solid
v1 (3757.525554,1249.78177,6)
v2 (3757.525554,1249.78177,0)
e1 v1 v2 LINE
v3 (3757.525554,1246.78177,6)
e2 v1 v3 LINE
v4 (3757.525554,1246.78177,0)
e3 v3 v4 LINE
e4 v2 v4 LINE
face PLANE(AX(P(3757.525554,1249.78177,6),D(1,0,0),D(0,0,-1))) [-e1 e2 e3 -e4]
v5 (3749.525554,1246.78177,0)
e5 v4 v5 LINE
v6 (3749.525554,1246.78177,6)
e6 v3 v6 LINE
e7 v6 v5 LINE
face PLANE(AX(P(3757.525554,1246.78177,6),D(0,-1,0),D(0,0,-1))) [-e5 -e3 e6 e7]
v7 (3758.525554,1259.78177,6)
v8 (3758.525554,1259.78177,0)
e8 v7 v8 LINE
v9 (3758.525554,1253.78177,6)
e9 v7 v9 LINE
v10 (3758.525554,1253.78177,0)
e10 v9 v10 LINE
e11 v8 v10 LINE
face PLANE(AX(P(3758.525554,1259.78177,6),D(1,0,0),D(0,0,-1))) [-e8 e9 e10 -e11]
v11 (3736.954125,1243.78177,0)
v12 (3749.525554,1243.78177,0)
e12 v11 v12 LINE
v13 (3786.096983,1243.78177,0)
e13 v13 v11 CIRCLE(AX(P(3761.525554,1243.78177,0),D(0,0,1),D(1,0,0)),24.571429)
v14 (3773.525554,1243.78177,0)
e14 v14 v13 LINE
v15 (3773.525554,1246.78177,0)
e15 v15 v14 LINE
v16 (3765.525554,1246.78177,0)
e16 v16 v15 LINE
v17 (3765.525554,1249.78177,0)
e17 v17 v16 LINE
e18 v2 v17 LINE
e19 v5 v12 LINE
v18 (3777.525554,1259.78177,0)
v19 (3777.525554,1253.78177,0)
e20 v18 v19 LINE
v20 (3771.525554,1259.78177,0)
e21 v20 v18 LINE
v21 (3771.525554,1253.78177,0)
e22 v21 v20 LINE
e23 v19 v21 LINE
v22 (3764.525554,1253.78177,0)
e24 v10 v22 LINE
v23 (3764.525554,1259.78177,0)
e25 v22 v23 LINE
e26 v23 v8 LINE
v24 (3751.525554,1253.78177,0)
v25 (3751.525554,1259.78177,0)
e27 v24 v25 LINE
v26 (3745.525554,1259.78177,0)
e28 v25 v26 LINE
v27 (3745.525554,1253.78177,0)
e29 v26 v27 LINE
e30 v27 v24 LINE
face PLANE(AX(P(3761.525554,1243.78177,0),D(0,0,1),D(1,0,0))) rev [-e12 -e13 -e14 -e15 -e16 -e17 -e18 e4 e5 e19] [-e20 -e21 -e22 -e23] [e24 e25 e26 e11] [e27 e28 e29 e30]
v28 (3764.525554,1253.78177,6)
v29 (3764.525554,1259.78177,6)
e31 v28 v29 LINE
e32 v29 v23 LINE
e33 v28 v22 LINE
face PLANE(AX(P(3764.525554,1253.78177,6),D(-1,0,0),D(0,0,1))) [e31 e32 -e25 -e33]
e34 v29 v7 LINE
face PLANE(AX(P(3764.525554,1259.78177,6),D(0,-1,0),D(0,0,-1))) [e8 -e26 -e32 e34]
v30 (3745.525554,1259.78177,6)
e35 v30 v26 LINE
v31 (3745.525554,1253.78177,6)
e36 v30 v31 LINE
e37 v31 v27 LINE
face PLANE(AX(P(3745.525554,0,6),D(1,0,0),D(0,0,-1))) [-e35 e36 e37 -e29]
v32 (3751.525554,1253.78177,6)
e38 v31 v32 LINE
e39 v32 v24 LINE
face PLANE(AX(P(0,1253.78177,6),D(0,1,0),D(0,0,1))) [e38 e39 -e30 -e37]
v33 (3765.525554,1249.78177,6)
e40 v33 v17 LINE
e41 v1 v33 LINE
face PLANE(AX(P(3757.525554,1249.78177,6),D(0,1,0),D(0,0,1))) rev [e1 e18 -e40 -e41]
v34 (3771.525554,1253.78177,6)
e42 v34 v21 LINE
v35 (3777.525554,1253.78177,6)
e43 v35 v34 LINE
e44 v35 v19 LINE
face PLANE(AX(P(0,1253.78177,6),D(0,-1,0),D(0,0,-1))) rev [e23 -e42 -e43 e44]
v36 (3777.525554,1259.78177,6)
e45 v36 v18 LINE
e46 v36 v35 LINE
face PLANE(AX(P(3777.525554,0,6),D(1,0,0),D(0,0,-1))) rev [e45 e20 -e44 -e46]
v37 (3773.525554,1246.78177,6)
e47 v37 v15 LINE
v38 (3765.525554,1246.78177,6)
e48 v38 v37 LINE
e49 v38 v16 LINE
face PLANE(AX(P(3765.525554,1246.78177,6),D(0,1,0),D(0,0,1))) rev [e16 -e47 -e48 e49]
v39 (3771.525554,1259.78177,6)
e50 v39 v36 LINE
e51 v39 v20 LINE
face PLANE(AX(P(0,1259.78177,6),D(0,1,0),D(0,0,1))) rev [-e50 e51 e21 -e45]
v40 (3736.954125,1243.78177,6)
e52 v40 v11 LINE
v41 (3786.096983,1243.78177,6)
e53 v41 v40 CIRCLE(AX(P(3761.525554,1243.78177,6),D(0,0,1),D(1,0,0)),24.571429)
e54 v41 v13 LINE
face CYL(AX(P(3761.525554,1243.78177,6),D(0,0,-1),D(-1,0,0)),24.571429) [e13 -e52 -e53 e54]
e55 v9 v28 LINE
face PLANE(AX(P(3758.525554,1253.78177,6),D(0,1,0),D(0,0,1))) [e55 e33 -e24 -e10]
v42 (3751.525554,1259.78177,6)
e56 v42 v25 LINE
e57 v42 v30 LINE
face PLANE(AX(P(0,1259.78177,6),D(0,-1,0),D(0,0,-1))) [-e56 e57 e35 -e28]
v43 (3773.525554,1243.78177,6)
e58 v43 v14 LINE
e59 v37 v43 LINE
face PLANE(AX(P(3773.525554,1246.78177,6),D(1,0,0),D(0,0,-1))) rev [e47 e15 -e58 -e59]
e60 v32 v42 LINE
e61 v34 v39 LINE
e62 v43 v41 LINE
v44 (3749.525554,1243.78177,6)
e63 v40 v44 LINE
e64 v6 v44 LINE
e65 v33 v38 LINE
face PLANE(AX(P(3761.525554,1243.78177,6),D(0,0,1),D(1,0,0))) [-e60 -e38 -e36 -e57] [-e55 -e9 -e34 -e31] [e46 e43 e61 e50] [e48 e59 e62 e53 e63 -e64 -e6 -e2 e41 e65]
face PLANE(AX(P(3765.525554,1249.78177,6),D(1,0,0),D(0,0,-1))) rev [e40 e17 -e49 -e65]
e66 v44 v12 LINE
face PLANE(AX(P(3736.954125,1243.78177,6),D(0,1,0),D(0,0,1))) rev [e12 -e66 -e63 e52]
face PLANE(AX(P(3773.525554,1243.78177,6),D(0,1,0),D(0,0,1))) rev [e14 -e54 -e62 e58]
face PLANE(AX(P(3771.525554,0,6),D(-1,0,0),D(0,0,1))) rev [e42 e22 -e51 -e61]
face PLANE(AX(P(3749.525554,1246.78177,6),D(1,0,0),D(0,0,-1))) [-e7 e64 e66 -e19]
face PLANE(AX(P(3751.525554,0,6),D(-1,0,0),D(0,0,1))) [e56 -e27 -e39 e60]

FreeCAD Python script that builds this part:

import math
import FreeCAD as App
import Part
import Sketcher
from FreeCAD import Vector


def add_polygon(sketch, points):
    """Adds a closed chain of lines whose ends are joined by coincident constraints."""
    first, n = sketch.GeometryCount, len(points)
    for a, b in zip(points, points[1:] + points[:1]):
        sketch.addGeometry(Part.LineSegment(App.Vector(*a, 0), App.Vector(*b, 0)), False)
    for i in range(n):
        sketch.addConstraint(Sketcher.Constraint("Coincident", first + i, 2, first + (i + 1) % n, 1))

doc = App.newDocument("Part")
body = doc.addObject("PartDesign::Body", "Body")

# Sketch on XY plane
sketch1 = body.newObject("Sketcher::SketchObject", "Sketch")
sketch1.AttachmentSupport = (doc.getObject("XY_Plane"), [""])
sketch1.MapMode = "FlatFace"
sketch1.addGeometry(Part.LineSegment(Vector(3737, 1243.8, 0), Vector(3749.5, 1243.8, 0)), False)  # 0
sketch1.addGeometry(Part.LineSegment(Vector(3749.5, 1243.8, 0), Vector(3749.5, 1246.8, 0)), False)  # 1
sketch1.addGeometry(Part.LineSegment(Vector(3749.5, 1246.8, 0), Vector(3757.5, 1246.8, 0)), False)  # 2
sketch1.addGeometry(Part.LineSegment(Vector(3757.5, 1246.8, 0), Vector(3757.5, 1249.8, 0)), False)  # 3
sketch1.addGeometry(Part.LineSegment(Vector(3757.5, 1249.8, 0), Vector(3765.5, 1249.8, 0)), False)  # 4
sketch1.addGeometry(Part.LineSegment(Vector(3765.5, 1249.8, 0), Vector(3765.5, 1246.8, 0)), False)  # 5
sketch1.addGeometry(Part.LineSegment(Vector(3765.5, 1246.8, 0), Vector(3773.5, 1246.8, 0)), False)  # 6
sketch1.addGeometry(Part.LineSegment(Vector(3773.5, 1246.8, 0), Vector(3773.5, 1243.8, 0)), False)  # 7
sketch1.addGeometry(Part.LineSegment(Vector(3773.5, 1243.8, 0), Vector(3786.1, 1243.8, 0)), False)  # 8
sketch1.addGeometry(Part.ArcOfCircle(Part.Circle(Vector(3761.5, 1243.8, 0), Vector(0, 0, 1), 24.6), math.radians(0), math.radians(180)), False)  # 9
add_polygon(sketch1, [(3751.5, 1253.8), (3745.5, 1253.8), (3745.5, 1259.8), (3751.5, 1259.8)])  # lines 10-13
add_polygon(sketch1, [(3764.5, 1253.8), (3758.5, 1253.8), (3758.5, 1259.8), (3764.5, 1259.8)])  # lines 14-17
add_polygon(sketch1, [(3777.5, 1253.8), (3771.5, 1253.8), (3771.5, 1259.8), (3777.5, 1259.8)])  # lines 18-21
sketch1.addConstraint([
    Sketcher.Constraint("Coincident", 0, 2, 1, 1),
    Sketcher.Constraint("Coincident", 1, 2, 2, 1),
    Sketcher.Constraint("Coincident", 2, 2, 3, 1),
    Sketcher.Constraint("Coincident", 3, 2, 4, 1),
    Sketcher.Constraint("Coincident", 4, 2, 5, 1),
    Sketcher.Constraint("Coincident", 5, 2, 6, 1),
    Sketcher.Constraint("Coincident", 6, 2, 7, 1),
    Sketcher.Constraint("Coincident", 7, 2, 8, 1),
    Sketcher.Constraint("Coincident", 8, 2, 9, 1),
    Sketcher.Constraint("Coincident", 9, 2, 0, 1),
    Sketcher.Constraint("Horizontal", 0),
    Sketcher.Constraint("Vertical", 1),
    Sketcher.Constraint("Horizontal", 2),
    Sketcher.Constraint("Vertical", 3),
    Sketcher.Constraint("Horizontal", 4),
    Sketcher.Constraint("Vertical", 5),
    Sketcher.Constraint("Horizontal", 6),
    Sketcher.Constraint("Vertical", 7),
    Sketcher.Constraint("Horizontal", 8),
    Sketcher.Constraint("Horizontal", 10),
    Sketcher.Constraint("Vertical", 11),
    Sketcher.Constraint("Horizontal", 12),
    Sketcher.Constraint("Vertical", 13),
    Sketcher.Constraint("Horizontal", 14),
    Sketcher.Constraint("Vertical", 15),
    Sketcher.Constraint("Horizontal", 16),
    Sketcher.Constraint("Vertical", 17),
    Sketcher.Constraint("Horizontal", 18),
    Sketcher.Constraint("Vertical", 19),
    Sketcher.Constraint("Horizontal", 20),
    Sketcher.Constraint("Vertical", 21),
    Sketcher.Constraint("Horizontal", 9, 3, 0, 2),
    Sketcher.Constraint("Horizontal", 2, 2, 5, 2),
    Sketcher.Constraint("Horizontal", 0, 2, 7, 2),
    Sketcher.Constraint("Horizontal", 13, 2, 14, 2),
    Sketcher.Constraint("Horizontal", 12, 2, 15, 2),
    Sketcher.Constraint("Horizontal", 17, 2, 18, 2),
    Sketcher.Constraint("Horizontal", 16, 2, 19, 2),
    Sketcher.Constraint("Equal", 2, 4),
    Sketcher.Constraint("Equal", 4, 6),
    Sketcher.Constraint("Equal", 0, 8),
    Sketcher.Constraint("Equal", 12, 14),
    Sketcher.Constraint("Equal", 16, 18),
    Sketcher.Constraint("Equal", 1, 3),
    Sketcher.Constraint("Equal", 20, 11),
    Sketcher.Constraint("DistanceX", 2, 1, 2, 2, 8.0),
    Sketcher.Constraint("DistanceX", 10, 2, 10, 1, 6.0),
    Sketcher.Constraint("DistanceY", 1, 1, 1, 2, 3.0),
    Sketcher.Constraint("DistanceX", 10, 2, 1, 2, 4.0),
    Sketcher.Constraint("DistanceY", 1, 2, 10, 2, 7.0),
    Sketcher.Constraint("DistanceX", 3, 2, 14, 2, 1.0),
    Sketcher.Constraint("DistanceX", 17, 2, 18, 2, 7.0),
    Sketcher.Constraint("Radius", 9, 24.571429),
    Sketcher.Constraint("DistanceY", -1, 1, 9, 3, 1243.78177),
    Sketcher.Constraint("DistanceX", -1, 1, 9, 3, 3761.525554),
])
pad1 = body.newObject("PartDesign::Pad", "Pad")
pad1.Profile = sketch1
pad1.Length = 6

doc.recompute()
